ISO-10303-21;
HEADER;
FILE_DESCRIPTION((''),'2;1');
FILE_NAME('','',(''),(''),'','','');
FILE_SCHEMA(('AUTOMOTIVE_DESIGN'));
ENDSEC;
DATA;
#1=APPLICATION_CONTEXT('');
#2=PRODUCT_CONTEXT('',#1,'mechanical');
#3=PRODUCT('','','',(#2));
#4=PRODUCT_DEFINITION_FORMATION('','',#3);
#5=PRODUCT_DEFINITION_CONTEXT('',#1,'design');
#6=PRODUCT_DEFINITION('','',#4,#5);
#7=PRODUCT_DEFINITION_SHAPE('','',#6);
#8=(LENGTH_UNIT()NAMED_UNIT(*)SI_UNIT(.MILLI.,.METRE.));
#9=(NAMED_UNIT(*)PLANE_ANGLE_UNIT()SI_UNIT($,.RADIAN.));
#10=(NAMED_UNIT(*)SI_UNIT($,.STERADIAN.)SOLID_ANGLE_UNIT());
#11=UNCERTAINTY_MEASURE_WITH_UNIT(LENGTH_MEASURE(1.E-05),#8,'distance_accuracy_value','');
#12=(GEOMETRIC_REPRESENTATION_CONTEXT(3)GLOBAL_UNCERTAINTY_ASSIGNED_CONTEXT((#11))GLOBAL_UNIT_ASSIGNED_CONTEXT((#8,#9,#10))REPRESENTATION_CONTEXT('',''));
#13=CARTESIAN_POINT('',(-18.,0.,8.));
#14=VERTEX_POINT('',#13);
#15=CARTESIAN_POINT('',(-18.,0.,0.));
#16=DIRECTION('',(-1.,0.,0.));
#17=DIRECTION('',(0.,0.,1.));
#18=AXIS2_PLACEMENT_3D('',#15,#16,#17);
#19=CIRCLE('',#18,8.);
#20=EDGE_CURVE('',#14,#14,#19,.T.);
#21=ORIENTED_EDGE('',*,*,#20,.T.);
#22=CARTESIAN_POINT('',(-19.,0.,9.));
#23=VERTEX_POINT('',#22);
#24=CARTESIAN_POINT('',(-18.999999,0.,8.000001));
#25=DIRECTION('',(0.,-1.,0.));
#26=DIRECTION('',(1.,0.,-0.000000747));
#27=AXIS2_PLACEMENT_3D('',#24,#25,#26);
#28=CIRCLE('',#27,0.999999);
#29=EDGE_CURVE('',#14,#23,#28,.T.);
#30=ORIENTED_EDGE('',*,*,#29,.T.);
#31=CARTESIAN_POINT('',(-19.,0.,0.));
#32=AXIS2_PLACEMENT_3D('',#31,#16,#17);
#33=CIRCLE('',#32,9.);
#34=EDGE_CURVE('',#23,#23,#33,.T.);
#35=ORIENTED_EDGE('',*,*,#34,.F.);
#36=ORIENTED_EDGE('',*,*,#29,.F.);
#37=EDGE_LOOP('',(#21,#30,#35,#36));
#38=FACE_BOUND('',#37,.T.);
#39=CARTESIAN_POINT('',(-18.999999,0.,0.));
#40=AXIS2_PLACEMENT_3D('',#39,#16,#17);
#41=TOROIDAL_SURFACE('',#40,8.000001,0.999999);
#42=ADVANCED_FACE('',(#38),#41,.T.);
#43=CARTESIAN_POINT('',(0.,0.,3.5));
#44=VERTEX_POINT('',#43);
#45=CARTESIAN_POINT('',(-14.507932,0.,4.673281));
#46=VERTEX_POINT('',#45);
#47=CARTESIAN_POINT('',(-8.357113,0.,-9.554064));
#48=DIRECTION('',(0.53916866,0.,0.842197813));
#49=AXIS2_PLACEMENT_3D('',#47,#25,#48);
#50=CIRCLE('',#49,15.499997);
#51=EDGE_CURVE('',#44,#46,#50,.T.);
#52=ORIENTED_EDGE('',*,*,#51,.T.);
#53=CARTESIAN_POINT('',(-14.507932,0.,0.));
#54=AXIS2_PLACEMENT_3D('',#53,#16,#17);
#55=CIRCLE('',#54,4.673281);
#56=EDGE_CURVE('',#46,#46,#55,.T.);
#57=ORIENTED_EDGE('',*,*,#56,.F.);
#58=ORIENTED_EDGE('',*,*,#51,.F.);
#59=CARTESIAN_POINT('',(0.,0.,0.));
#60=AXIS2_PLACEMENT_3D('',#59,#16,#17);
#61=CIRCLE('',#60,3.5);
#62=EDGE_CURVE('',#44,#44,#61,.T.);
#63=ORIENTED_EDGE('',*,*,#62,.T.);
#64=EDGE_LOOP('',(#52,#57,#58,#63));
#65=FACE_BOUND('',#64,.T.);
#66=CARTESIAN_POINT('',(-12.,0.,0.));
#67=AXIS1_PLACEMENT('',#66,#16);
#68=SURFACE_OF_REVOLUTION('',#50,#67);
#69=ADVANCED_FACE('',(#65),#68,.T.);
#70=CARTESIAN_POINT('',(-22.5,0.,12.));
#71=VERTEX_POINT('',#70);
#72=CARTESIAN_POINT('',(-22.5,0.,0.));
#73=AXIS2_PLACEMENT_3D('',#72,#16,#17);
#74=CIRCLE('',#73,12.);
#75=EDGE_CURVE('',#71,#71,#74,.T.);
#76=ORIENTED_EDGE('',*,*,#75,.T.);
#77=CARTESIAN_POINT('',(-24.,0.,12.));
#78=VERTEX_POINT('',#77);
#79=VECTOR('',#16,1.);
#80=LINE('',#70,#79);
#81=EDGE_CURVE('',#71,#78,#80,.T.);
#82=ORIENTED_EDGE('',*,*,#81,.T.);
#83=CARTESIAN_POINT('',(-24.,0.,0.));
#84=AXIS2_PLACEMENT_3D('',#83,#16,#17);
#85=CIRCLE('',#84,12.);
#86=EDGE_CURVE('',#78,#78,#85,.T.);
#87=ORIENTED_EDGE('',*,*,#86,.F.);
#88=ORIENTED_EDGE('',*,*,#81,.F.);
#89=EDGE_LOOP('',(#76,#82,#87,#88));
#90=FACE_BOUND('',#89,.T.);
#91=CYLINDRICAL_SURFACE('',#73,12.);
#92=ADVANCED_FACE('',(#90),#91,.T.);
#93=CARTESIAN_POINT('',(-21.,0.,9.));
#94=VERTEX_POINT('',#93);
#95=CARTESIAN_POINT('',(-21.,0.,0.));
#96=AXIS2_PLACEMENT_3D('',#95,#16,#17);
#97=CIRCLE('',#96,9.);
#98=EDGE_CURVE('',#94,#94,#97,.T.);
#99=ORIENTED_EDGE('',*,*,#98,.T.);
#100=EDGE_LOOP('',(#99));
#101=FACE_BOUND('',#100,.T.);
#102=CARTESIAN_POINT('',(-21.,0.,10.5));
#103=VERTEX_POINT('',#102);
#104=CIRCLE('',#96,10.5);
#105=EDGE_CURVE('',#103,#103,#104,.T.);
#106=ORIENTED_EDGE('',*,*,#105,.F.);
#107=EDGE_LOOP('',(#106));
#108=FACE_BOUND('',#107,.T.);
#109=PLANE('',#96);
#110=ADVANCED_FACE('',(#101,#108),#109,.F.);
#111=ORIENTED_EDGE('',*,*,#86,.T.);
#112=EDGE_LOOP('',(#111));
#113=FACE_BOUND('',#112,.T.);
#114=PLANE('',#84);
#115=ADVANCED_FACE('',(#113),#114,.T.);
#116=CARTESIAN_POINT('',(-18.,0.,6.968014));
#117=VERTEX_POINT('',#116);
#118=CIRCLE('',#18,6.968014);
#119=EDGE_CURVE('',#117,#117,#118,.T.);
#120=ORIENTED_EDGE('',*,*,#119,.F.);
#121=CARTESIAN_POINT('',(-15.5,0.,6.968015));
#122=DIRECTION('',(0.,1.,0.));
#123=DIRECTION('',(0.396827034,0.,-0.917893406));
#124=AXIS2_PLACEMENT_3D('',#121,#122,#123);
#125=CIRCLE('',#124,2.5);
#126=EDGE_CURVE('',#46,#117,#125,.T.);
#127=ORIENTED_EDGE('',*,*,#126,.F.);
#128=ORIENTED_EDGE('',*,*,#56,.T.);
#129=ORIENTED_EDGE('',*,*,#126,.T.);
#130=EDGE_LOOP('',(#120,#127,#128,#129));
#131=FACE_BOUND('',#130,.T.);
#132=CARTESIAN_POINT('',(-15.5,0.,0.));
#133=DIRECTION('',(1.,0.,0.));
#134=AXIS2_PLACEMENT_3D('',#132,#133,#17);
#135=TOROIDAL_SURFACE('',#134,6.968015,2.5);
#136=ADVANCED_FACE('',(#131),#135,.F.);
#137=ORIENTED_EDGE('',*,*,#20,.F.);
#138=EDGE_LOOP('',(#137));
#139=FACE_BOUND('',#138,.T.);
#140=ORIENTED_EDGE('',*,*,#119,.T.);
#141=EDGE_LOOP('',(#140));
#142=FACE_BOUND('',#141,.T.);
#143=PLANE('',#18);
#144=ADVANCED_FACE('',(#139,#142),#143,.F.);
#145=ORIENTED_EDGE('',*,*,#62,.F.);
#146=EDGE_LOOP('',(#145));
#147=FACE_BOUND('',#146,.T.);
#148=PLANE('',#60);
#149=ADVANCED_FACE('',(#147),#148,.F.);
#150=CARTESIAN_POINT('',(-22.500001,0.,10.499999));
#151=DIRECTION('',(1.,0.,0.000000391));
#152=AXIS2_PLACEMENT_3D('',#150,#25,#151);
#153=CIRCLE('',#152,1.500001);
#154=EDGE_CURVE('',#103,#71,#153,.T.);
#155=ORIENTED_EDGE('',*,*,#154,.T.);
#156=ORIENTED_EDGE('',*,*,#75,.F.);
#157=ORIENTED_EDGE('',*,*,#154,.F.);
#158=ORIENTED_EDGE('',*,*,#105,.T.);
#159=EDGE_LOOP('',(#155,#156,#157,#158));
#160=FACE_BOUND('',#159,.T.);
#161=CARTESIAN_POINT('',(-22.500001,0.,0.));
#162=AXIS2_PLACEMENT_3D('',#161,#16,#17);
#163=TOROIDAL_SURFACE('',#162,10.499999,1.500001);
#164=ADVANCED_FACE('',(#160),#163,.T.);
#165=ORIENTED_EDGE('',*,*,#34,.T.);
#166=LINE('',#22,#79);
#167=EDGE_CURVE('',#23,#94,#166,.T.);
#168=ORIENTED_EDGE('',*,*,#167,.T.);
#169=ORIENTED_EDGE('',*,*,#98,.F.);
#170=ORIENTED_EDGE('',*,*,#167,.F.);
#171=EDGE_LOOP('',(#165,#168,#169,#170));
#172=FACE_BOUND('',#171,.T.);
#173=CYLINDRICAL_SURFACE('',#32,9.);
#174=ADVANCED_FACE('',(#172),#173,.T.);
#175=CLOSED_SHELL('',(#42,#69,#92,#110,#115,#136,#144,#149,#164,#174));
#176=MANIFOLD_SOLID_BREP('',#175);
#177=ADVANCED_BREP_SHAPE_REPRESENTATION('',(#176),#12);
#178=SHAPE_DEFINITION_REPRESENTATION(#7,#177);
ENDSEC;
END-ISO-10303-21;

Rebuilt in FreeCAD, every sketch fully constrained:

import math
import FreeCAD as App
import Part
import Sketcher

V = App.Vector
Q = App.Units.Quantity

doc = App.newDocument("Part")
body = doc.addObject("PartDesign::Body", "Body")

# Sketch on XZ plane
sketch1 = doc.addObject("Sketcher::SketchObject", "Sketch")
body.addObject(sketch1)
sketch1.AttachmentSupport = (doc.XZ_Plane, [""])
sketch1.MapMode = "FlatFace"
sketch1.addGeometry(Part.LineSegment(V(-24, 0, 0), V(0, 0, 0)), False)
sketch1.addGeometry(Part.LineSegment(V(0, 0, 0), V(0, 3.5, 0)), False)
sketch1.addGeometry(Part.ArcOfCircle(Part.Circle(V(-8.4, -9.6, 0), V(0, 0, 1), 15.5), math.radians(57), math.radians(113)), False)
sketch1.addGeometry(Part.ArcOfCircle(Part.Circle(V(-15.5, 7, 0), V(0, 0, 1), 2.5), math.radians(-180), math.radians(-67)), False)
sketch1.addGeometry(Part.LineSegment(V(-18, 7, 0), V(-18, 8, 0)), False)
sketch1.addGeometry(Part.ArcOfCircle(Part.Circle(V(-19, 8, 0), V(0, 0, 1), 1), math.radians(0), math.radians(90)), False)
sketch1.addGeometry(Part.LineSegment(V(-19, 9, 0), V(-21, 9, 0)), False)
sketch1.addGeometry(Part.LineSegment(V(-21, 9, 0), V(-21, 10.5, 0)), False)
sketch1.addGeometry(Part.ArcOfCircle(Part.Circle(V(-22.5, 10.5, 0), V(0, 0, 1), 1.5), math.radians(0), math.radians(90)), False)
sketch1.addGeometry(Part.LineSegment(V(-22.5, 12, 0), V(-24, 12, 0)), False)
sketch1.addGeometry(Part.LineSegment(V(-24, 12, 0), V(-24, 0, 0)), False)
sketch1.addConstraint(Sketcher.Constraint("Coincident", 0, 2, 1, 1))
sketch1.addConstraint(Sketcher.Constraint("Coincident", 1, 2, 2, 1))
sketch1.addConstraint(Sketcher.Constraint("Tangent", 2, 2, 3, 2))
sketch1.addConstraint(Sketcher.Constraint("Tangent", 3, 1, 4, 1))
sketch1.addConstraint(Sketcher.Constraint("Tangent", 4, 2, 5, 1))
sketch1.addConstraint(Sketcher.Constraint("Tangent", 5, 2, 6, 1))
sketch1.addConstraint(Sketcher.Constraint("Coincident", 6, 2, 7, 1))
sketch1.addConstraint(Sketcher.Constraint("Tangent", 7, 2, 8, 1))
sketch1.addConstraint(Sketcher.Constraint("Tangent", 8, 2, 9, 1))
sketch1.addConstraint(Sketcher.Constraint("Coincident", 9, 2, 10, 1))
sketch1.addConstraint(Sketcher.Constraint("Coincident", 10, 2, 0, 1))
sketch1.addConstraint(Sketcher.Constraint("Horizontal", 0))
sketch1.addConstraint(Sketcher.Constraint("Vertical", 1))
sketch1.addConstraint(Sketcher.Constraint("Vertical", 4))
sketch1.addConstraint(Sketcher.Constraint("Horizontal", 6))
sketch1.addConstraint(Sketcher.Constraint("Vertical", 7))
sketch1.addConstraint(Sketcher.Constraint("Horizontal", 9))
sketch1.addConstraint(Sketcher.Constraint("Vertical", 10))
sketch1.addConstraint(Sketcher.Constraint("Coincident", 0, 2, -1, 1))
sketch1.addConstraint(Sketcher.Constraint("Equal", 9, 7))
sketch1.addConstraint(Sketcher.Constraint("Radius", 5, Q("0.999999 mm")))
sketch1.addConstraint(Sketcher.Constraint("Radius", 3, Q("2.5 mm")))
sketch1.addConstraint(Sketcher.Constraint("Radius", 8, Q("1.500001 mm")))
sketch1.addConstraint(Sketcher.Constraint("DistanceX", 0, 1, 0, 2, Q("24 mm")))
sketch1.addConstraint(Sketcher.Constraint("DistanceX", 6, 2, 6, 1, Q("2 mm")))
sketch1.addConstraint(Sketcher.Constraint("DistanceY", 10, 2, 10, 1, Q("12 mm")))
sketch1.addConstraint(Sketcher.Constraint("DistanceX", 9, 2, 9, 1, Q("1.5 mm")))
sketch1.addConstraint(Sketcher.Constraint("DistanceY", 1, 1, 1, 2, Q("3.5 mm")))
sketch1.addConstraint(Sketcher.Constraint("Radius", 2, Q("15.499997 mm")))
sketch1.addConstraint(Sketcher.Constraint("DistanceY", 4, 1, 4, 2, Q("1.031986 mm")))
revolution = doc.addObject("PartDesign::Revolution", "Revolution")
body.addObject(revolution)
revolution.Profile = sketch1
revolution.ReferenceAxis = (sketch1, ["H_Axis"])
revolution.Angle = 360

doc.recompute()
